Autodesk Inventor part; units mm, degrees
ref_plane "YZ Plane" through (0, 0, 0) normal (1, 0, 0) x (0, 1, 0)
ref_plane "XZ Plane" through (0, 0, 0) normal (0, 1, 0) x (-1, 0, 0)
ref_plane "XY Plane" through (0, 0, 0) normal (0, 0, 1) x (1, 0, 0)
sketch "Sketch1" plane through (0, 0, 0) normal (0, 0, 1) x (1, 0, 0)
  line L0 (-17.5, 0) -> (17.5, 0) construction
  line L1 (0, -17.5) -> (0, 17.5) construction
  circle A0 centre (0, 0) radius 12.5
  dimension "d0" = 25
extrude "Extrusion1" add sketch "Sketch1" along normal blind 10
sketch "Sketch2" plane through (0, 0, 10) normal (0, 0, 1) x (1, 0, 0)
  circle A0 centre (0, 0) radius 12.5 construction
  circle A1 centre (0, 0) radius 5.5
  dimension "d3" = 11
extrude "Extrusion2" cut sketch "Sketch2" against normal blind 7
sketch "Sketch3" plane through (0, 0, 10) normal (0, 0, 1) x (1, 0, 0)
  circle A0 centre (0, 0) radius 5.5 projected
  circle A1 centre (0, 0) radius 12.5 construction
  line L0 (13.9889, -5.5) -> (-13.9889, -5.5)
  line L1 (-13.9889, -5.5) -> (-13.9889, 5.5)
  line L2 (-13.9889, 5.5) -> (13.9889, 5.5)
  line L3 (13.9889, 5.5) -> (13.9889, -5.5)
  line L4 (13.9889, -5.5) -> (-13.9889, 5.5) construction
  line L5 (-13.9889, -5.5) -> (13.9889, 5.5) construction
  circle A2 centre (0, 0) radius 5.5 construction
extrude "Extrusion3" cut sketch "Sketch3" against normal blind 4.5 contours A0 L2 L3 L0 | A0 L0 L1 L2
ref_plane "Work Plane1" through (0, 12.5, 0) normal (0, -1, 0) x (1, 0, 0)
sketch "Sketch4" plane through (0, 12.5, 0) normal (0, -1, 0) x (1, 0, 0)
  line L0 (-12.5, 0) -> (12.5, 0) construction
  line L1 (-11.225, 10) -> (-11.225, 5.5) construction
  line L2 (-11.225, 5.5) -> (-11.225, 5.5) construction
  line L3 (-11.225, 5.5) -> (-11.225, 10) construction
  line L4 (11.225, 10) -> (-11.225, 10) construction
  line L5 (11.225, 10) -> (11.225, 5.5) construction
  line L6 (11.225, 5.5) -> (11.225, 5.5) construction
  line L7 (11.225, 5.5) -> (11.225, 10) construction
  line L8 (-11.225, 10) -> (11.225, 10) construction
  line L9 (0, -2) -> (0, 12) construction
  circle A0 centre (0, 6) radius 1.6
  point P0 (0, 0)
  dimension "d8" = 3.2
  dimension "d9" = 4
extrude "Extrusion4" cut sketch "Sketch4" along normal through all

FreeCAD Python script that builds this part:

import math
import FreeCAD as App
import Part
import Sketcher
Q = App.Units.Quantity

doc = App.newDocument("Part")
body = doc.addObject("PartDesign::Body", "Body")

# Sketch on XY plane
sketch1 = body.newObject("Sketcher::SketchObject", "Sketch")
sketch1.AttachmentSupport = (doc.getObject("XY_Plane"), [""])
sketch1.MapMode = "FlatFace"
sketch1.addGeometry(Part.Circle(App.Vector(0, 0, 0), App.Vector(0, 0, 1), 12), False)
sketch1.addConstraint([
    Sketcher.Constraint("Coincident", 0, 3, -1, 1),
    Sketcher.Constraint("Diameter", 0, Q("25 mm")),
])
pad1 = body.newObject("PartDesign::Pad", "Pad")
pad1.Profile = sketch1
pad1.Length = 10

# Sketch on XY plane
sketch2 = body.newObject("Sketcher::SketchObject", "Sketch001")
sketch2.AttachmentSupport = (doc.getObject("XY_Plane"), [""])
sketch2.MapMode = "FlatFace"
sketch2.AttachmentOffset = App.Placement(App.Vector(0, 0, 10), App.Rotation())
sketch2.addGeometry(Part.Circle(App.Vector(0, 0, 0), App.Vector(0, 0, 1), 6), False)
sketch2.addConstraint([
    Sketcher.Constraint("Coincident", 0, 3, -1, 1),
    Sketcher.Constraint("Diameter", 0, Q("11 mm")),
])
pocket1 = body.newObject("PartDesign::Pocket", "Pocket")
pocket1.Profile = sketch2
pocket1.Length = 7

# Sketch on XY plane
sketch3 = body.newObject("Sketcher::SketchObject", "Sketch002")
sketch3.AttachmentSupport = (doc.getObject("XY_Plane"), [""])
sketch3.MapMode = "FlatFace"
sketch3.AttachmentOffset = App.Placement(App.Vector(0, 0, 10), App.Rotation())
sketch3.addGeometry([
    Part.ArcOfCircle(Part.Circle(App.Vector(0, 0, 0), App.Vector(0, 0, 1), 6), math.radians(-90), math.radians(90)),  # 0
    Part.LineSegment(App.Vector(0, -6, 0), App.Vector(14, -6, 0)),  # 1
    Part.LineSegment(App.Vector(14, -6, 0), App.Vector(14, 6, 0)),  # 2
    Part.LineSegment(App.Vector(14, 6, 0), App.Vector(0, 6, 0)),  # 3
    Part.ArcOfCircle(Part.Circle(App.Vector(0, 0, 0), App.Vector(0, 0, 1), 6), math.radians(90), math.radians(270)),  # 4
    Part.LineSegment(App.Vector(0, 6, 0), App.Vector(-14, 6, 0)),  # 5
    Part.LineSegment(App.Vector(-14, 6, 0), App.Vector(-14, -6, 0)),  # 6
    Part.LineSegment(App.Vector(-14, -6, 0), App.Vector(0, -6, 0)),  # 7
], False)
sketch3.addConstraint([
    Sketcher.Constraint("Tangent", 0, 1, 1, 1),
    Sketcher.Constraint("Coincident", 1, 2, 2, 1),
    Sketcher.Constraint("Coincident", 2, 2, 3, 1),
    Sketcher.Constraint("Tangent", 3, 2, 0, 2),
    Sketcher.Constraint("Tangent", 4, 1, 5, 1),
    Sketcher.Constraint("Coincident", 5, 2, 6, 1),
    Sketcher.Constraint("Coincident", 6, 2, 7, 1),
    Sketcher.Constraint("Tangent", 7, 2, 4, 2),
    Sketcher.Constraint("Horizontal", 1),
    Sketcher.Constraint("Vertical", 2),
    Sketcher.Constraint("Horizontal", 3),
    Sketcher.Constraint("Horizontal", 5),
    Sketcher.Constraint("Vertical", 6),
    Sketcher.Constraint("Horizontal", 7),
    Sketcher.Constraint("Coincident", 0, 3, -1, 1),
    Sketcher.Constraint("Coincident", 4, 3, -1, 1),
    Sketcher.Constraint("Equal", 0, 4),
    Sketcher.Constraint("Equal", 3, 5),
    Sketcher.Constraint("Radius", 0, Q("5.5 mm")),
    Sketcher.Constraint("DistanceX", 1, 1, 1, 2, Q("13.989 mm")),
])
pocket2 = body.newObject("PartDesign::Pocket", "Pocket001")
pocket2.Profile = sketch3
pocket2.Length = 4.5

# Sketch on XZ plane
sketch4 = body.newObject("Sketcher::SketchObject", "Sketch003")
sketch4.AttachmentSupport = (doc.getObject("XZ_Plane"), [""])
sketch4.MapMode = "FlatFace"
sketch4.AttachmentOffset = App.Placement(App.Vector(0, 0, -12.5), App.Rotation())
sketch4.addGeometry(Part.Circle(App.Vector(0, 6, 0), App.Vector(0, 0, 1), 1.6), False)
sketch4.addConstraint([
    Sketcher.Constraint("PointOnObject", 0, 3, -2),
    Sketcher.Constraint("Diameter", 0, Q("3.2 mm")),
    Sketcher.Constraint("DistanceY", -1, 1, 0, 3, Q("6 mm")),
])
pocket3 = body.newObject("PartDesign::Pocket", "Pocket002")
pocket3.Profile = sketch4
pocket3.Type = "ThroughAll"
pocket3.Reversed = True

doc.recompute()
